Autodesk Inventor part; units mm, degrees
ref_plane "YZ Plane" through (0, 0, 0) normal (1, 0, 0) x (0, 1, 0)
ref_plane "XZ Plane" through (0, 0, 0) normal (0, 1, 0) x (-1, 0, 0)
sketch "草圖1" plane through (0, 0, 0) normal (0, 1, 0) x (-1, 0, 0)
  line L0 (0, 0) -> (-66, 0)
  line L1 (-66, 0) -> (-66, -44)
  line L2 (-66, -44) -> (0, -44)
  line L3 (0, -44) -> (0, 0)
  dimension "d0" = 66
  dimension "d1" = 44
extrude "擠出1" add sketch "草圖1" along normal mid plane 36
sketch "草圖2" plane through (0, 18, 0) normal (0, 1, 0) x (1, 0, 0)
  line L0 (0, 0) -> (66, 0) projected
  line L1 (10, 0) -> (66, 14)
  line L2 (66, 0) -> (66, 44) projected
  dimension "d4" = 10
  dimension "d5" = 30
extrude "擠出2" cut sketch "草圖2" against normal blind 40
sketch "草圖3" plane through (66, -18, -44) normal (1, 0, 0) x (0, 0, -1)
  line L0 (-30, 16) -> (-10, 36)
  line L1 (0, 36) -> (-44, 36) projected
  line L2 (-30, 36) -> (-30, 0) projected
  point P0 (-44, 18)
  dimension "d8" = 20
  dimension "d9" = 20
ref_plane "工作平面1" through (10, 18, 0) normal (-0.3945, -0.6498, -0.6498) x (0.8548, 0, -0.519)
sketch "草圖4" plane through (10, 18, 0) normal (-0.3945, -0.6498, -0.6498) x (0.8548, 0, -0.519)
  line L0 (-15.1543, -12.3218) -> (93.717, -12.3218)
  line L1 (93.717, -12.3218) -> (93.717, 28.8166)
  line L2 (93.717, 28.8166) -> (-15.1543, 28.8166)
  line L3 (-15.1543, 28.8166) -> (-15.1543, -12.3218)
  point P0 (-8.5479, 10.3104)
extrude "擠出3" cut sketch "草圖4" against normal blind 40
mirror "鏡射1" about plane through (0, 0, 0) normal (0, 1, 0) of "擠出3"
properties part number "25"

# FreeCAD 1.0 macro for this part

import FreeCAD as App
import Part
import Sketcher
from FreeCAD import Vector
Q = App.Units.Quantity

doc = App.newDocument("Part")
body = doc.addObject("PartDesign::Body", "Body")

# Sketch on XZ plane
sketch1 = body.newObject("Sketcher::SketchObject", "Sketch")
sketch1.AttachmentSupport = (doc.getObject("XZ_Plane"), [""])
sketch1.MapMode = "FlatFace"
sketch1.addGeometry([
    Part.LineSegment(Vector(0, -44, 0), Vector(0, 0, 0)),
    Part.LineSegment(Vector(0, 0, 0), Vector(66, 0, 0)),
    Part.LineSegment(Vector(66, 0, 0), Vector(66, -44, 0)),
    Part.LineSegment(Vector(66, -44, 0), Vector(0, -44, 0)),
], False)
sketch1.addConstraint([
    Sketcher.Constraint("Coincident", 0, 2, 1, 1),
    Sketcher.Constraint("Coincident", 1, 2, 2, 1),
    Sketcher.Constraint("Coincident", 2, 2, 3, 1),
    Sketcher.Constraint("Coincident", 3, 2, 0, 1),
    Sketcher.Constraint("Vertical", 0),
    Sketcher.Constraint("Horizontal", 1),
    Sketcher.Constraint("Vertical", 2),
    Sketcher.Constraint("Horizontal", 3),
    Sketcher.Constraint("Coincident", 0, 2, -1, 1),
    Sketcher.Constraint("DistanceX", 1, 1, 1, 2, Q("66 mm")),
    Sketcher.Constraint("DistanceY", 0, 1, 0, 2, Q("44 mm")),
])
pad1 = body.newObject("PartDesign::Pad", "Pad")
pad1.Profile = sketch1
pad1.Length = 36
pad1.Midplane = True

# Sketch on XZ plane
sketch2 = body.newObject("Sketcher::SketchObject", "Sketch001")
sketch2.AttachmentSupport = (doc.getObject("XZ_Plane"), [""])
sketch2.MapMode = "FlatFace"
sketch2.AttachmentOffset = App.Placement(Vector(0, 0, -18), App.Rotation())
sketch2.addGeometry([
    Part.LineSegment(Vector(66, -14, 0), Vector(10, 0, 0)),
    Part.LineSegment(Vector(10, 0, 0), Vector(66, 0, 0)),
    Part.LineSegment(Vector(66, 0, 0), Vector(66, -14, 0)),
], False)
sketch2.addConstraint([
    Sketcher.Constraint("Coincident", 0, 2, 1, 1),
    Sketcher.Constraint("Coincident", 1, 2, 2, 1),
    Sketcher.Constraint("Coincident", 2, 2, 0, 1),
    Sketcher.Constraint("Horizontal", 1),
    Sketcher.Constraint("Vertical", 2),
    Sketcher.Constraint("PointOnObject", 0, 2, -1),
    Sketcher.Constraint("DistanceX", -1, 1, 0, 2, Q("10 mm")),
    Sketcher.Constraint("DistanceX", 1, 1, 1, 2, Q("56 mm")),
    Sketcher.Constraint("DistanceY", 2, 2, 2, 1, Q("14 mm")),
])
pocket1 = body.newObject("PartDesign::Pocket", "Pocket")
pocket1.Profile = sketch2
pocket1.Length = 40
pocket1.Reversed = True

# Sketch on an angled plane
sketch3 = body.newObject("Sketcher::SketchObject", "Sketch002")
sketch3.Placement = App.Placement(Vector(10, 18, 0), App.Rotation(Vector(0.854792065, 0.000017932, -0.51897064), Vector(0.337220172, -0.76013587, 0.555406172), Vector(-0.394478239, -0.649764157, -0.649764157), "ZXY"))
sketch3.addGeometry([
    Part.LineSegment(Vector(-15.1543, 28.8166, 0), Vector(-15.1543, -12.3218, 0)),
    Part.LineSegment(Vector(-15.1543, -12.3218, 0), Vector(93.717, -12.3218, 0)),
    Part.LineSegment(Vector(93.717, -12.3218, 0), Vector(93.717, 28.8166, 0)),
    Part.LineSegment(Vector(93.717, 28.8166, 0), Vector(-15.1543, 28.8166, 0)),
], False)
sketch3.addConstraint([
    Sketcher.Constraint("Coincident", 0, 2, 1, 1),
    Sketcher.Constraint("Coincident", 1, 2, 2, 1),
    Sketcher.Constraint("Coincident", 2, 2, 3, 1),
    Sketcher.Constraint("Coincident", 3, 2, 0, 1),
    Sketcher.Constraint("Vertical", 0),
    Sketcher.Constraint("Horizontal", 1),
    Sketcher.Constraint("Vertical", 2),
    Sketcher.Constraint("Horizontal", 3),
    Sketcher.Constraint("DistanceX", 1, 1, 1, 2, Q("108.8713 mm")),
    Sketcher.Constraint("DistanceY", 0, 2, 0, 1, Q("41.1384 mm")),
    Sketcher.Constraint("DistanceX", -1, 1, 1, 2, Q("93.717 mm")),
    Sketcher.Constraint("DistanceY", 0, 2, -1, 1, Q("12.3218 mm")),
])
pocket2 = body.newObject("PartDesign::Pocket", "Pocket001")
pocket2.Profile = sketch3
pocket2.Length = 40
doc.recompute()

mirrored = body.newObject("PartDesign::Mirrored", "Mirrored")
mirrored.Originals = [pocket2]
mirrored.MirrorPlane = (doc.getObject("XZ_Plane"), [""])
body.Tip = mirrored

doc.recompute()
